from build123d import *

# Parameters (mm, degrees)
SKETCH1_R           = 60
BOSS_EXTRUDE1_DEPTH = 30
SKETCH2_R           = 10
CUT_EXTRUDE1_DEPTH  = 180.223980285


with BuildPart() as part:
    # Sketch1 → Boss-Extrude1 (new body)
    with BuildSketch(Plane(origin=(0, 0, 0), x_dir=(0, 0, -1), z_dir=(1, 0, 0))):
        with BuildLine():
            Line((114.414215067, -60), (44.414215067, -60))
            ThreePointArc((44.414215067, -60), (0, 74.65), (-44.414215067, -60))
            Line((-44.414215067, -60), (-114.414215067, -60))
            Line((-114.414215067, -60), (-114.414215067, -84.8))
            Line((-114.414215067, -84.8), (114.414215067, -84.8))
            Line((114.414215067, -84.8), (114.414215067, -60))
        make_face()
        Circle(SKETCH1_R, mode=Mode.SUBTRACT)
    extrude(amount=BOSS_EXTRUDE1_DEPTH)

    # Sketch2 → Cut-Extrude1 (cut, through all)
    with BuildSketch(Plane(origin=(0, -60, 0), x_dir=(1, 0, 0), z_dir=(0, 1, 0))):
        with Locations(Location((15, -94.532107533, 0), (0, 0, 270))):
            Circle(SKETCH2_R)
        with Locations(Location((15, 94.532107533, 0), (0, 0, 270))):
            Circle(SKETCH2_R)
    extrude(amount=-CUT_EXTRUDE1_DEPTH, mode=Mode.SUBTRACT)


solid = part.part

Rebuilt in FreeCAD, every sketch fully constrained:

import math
import FreeCAD as App
import Part
import Sketcher
from FreeCAD import Vector

doc = App.newDocument("Part")
body = doc.addObject("PartDesign::Body", "Body")

# Sketch on YZ plane
sketch1 = doc.addObject("Sketcher::SketchObject", "Sketch")
body.addObject(sketch1)
sketch1.AttachmentSupport = (doc.YZ_Plane, [""])
sketch1.MapMode = "FlatFace"
sketch1.addGeometry([
    Part.LineSegment(Vector(-60, -114, 0), Vector(-60, -44, 0)),  # 0
    Part.ArcOfCircle(Part.Circle(Vector(0, 0, 0), Vector(0, 0, 1), 75), math.radians(-143), math.radians(143)),  # 1
    Part.LineSegment(Vector(-60, 44, 0), Vector(-60, 114, 0)),  # 2
    Part.LineSegment(Vector(-60, 114, 0), Vector(-85, 114, 0)),  # 3
    Part.LineSegment(Vector(-85, 114, 0), Vector(-85, -114, 0)),  # 4
    Part.LineSegment(Vector(-85, -114, 0), Vector(-60, -114, 0)),  # 5
    Part.Circle(Vector(0, 0, 0), Vector(0, 0, 1), 60),  # 6
], False)
sketch1.addConstraint([
    Sketcher.Constraint("Coincident", 0, 2, 1, 1),
    Sketcher.Constraint("Coincident", 1, 2, 2, 1),
    Sketcher.Constraint("Coincident", 2, 2, 3, 1),
    Sketcher.Constraint("Coincident", 3, 2, 4, 1),
    Sketcher.Constraint("Coincident", 4, 2, 5, 1),
    Sketcher.Constraint("Coincident", 5, 2, 0, 1),
    Sketcher.Constraint("Vertical", 0),
    Sketcher.Constraint("Vertical", 2),
    Sketcher.Constraint("Horizontal", 3),
    Sketcher.Constraint("Vertical", 4),
    Sketcher.Constraint("Horizontal", 5),
    Sketcher.Constraint("Coincident", 1, 3, -1, 1),
    Sketcher.Constraint("Coincident", 6, 3, -1, 1),
    Sketcher.Constraint("Symmetric", 2, 2, 5, 2, -1),
    Sketcher.Constraint("Diameter", 6, 120.0),
    Sketcher.Constraint("DistanceY", 0, 1, 0, 2, 70.0),
    Sketcher.Constraint("Radius", 1, 74.65),
    Sketcher.Constraint("DistanceX", 3, 2, 3, 1, 24.8),
    Sketcher.Constraint("DistanceX", 0, 2, -1, 1, 60.0),
])
pad1 = doc.addObject("PartDesign::Pad", "Pad")
body.addObject(pad1)
pad1.Profile = sketch1
pad1.Length = 30

# Sketch on XZ plane
sketch2 = doc.addObject("Sketcher::SketchObject", "Sketch001")
body.addObject(sketch2)
sketch2.AttachmentSupport = (doc.XZ_Plane, [""])
sketch2.MapMode = "FlatFace"
sketch2.AttachmentOffset = App.Placement(Vector(0, 0, 60), App.Rotation())
sketch2.addGeometry([
    Part.Circle(Vector(15, 95, 0), Vector(0, 0, 1), 10),
    Part.Circle(Vector(15, -95, 0), Vector(0, 0, 1), 10),
], False)
sketch2.addConstraint([
    Sketcher.Constraint("Equal", 0, 1),
    Sketcher.Constraint("Symmetric", 0, 3, 1, 3, -1),
    Sketcher.Constraint("Diameter", 0, 20.0),
    Sketcher.Constraint("DistanceX", -1, 1, 0, 3, 15.0),
    Sketcher.Constraint("DistanceY", -1, 1, 0, 3, 94.532108),
])
pocket1 = doc.addObject("PartDesign::Pocket", "Pocket")
body.addObject(pocket1)
pocket1.Profile = sketch2
pocket1.Type = "ThroughAll"
pocket1.Reversed = True

doc.recompute()
